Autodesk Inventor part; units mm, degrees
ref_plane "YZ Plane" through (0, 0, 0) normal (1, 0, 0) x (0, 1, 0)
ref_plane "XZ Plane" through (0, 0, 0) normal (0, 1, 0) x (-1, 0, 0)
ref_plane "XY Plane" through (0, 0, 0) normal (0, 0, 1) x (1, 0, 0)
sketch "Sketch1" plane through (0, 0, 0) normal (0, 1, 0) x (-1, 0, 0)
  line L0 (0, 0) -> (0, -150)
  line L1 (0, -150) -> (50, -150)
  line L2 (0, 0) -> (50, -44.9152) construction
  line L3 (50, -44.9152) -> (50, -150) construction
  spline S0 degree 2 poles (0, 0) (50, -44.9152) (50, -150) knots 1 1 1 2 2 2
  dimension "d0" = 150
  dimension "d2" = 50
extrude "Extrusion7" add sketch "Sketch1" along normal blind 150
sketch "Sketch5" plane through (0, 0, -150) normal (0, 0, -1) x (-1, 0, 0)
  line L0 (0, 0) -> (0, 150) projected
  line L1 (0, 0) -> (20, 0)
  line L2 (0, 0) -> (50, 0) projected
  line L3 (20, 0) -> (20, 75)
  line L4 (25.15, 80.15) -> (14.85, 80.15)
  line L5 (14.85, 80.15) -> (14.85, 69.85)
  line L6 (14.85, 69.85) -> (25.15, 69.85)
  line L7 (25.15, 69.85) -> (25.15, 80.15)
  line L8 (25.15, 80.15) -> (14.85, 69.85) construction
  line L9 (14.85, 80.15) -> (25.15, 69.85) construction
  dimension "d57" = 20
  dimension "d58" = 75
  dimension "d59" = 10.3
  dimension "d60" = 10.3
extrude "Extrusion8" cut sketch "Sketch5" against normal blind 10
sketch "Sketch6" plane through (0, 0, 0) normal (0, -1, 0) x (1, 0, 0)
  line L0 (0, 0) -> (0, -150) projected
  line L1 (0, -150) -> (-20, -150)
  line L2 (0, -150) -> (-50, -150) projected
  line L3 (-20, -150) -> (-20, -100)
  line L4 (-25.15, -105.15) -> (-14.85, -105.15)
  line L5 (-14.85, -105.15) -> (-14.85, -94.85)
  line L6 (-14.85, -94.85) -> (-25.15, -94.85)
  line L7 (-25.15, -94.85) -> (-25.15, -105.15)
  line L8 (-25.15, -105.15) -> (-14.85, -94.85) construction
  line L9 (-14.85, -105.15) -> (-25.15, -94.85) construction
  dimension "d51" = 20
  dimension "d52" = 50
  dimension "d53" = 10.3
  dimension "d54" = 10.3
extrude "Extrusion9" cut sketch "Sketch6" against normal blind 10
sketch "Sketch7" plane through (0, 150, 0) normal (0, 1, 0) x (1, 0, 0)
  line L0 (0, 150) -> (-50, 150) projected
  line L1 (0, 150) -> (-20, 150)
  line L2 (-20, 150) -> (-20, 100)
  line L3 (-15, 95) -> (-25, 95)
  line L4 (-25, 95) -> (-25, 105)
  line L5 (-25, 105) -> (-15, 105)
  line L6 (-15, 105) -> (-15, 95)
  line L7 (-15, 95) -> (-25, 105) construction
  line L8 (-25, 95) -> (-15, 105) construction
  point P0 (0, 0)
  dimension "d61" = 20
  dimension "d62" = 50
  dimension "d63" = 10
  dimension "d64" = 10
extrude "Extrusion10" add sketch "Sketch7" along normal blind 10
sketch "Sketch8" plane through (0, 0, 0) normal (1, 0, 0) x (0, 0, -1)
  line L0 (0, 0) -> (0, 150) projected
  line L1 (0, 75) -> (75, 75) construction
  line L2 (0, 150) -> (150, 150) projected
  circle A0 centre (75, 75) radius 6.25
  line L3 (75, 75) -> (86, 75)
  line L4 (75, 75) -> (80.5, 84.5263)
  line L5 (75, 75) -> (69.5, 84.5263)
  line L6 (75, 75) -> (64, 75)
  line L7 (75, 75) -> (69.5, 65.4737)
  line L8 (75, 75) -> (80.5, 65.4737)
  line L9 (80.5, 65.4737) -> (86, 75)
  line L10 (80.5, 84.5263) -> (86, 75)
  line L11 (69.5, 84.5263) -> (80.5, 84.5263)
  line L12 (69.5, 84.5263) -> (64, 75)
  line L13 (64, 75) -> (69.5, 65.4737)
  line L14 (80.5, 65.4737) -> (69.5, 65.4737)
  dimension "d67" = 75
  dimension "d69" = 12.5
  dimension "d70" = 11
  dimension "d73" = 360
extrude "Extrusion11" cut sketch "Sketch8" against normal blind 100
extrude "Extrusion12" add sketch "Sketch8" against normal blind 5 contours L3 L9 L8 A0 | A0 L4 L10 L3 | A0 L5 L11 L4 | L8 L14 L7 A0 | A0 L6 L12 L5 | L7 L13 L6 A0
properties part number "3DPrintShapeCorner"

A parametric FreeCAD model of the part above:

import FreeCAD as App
import Part
import Sketcher
from FreeCAD import Vector
Q = App.Units.Quantity

doc = App.newDocument("Part")
params = doc.addObject("Spreadsheet::Sheet", "Params")
for row, (alias, value) in enumerate([
    ("pad1_length", "150 mm"),
    ("sketch2_width", "10.3 mm"),
    ("pocket1_length", "10 mm"),
    ("sketch3_width", "10.3 mm"),
    ("pocket2_length", "10 mm"),
    ("sketch4_width", "10 mm"),
    ("pad2_length", "10 mm"),
    ("sketch5_height", "11 mm"),
    ("sketch5_length", "11 mm"),
    ("pocket3_length", "100 mm"),
    ("sketch6_diameter", "12.5 mm"),
    ("sketch6_height", "11 mm"),
    ("sketch6_length", "11 mm"),
    ("pad3_length", "5 mm"),
], start=1):
    params.set(f"A{row}", alias)
    params.set(f"B{row}", "=" + value)
    params.setAlias(f"B{row}", alias)

body = doc.addObject("PartDesign::Body", "Body")

# Sketch on XZ plane
sketch1 = body.newObject("Sketcher::SketchObject", "Sketch")
sketch1.AttachmentSupport = (doc.getObject("XZ_Plane"), [""])
sketch1.MapMode = "FlatFace"
sketch1.addGeometry([
    Part.BSplineCurve([Vector(0, 0, 0), Vector(-50, -44.9152, 0), Vector(-50, -150, 0)], [3, 3], [1, 2], False, 2, [1, 1, 1], False),
    Part.LineSegment(Vector(0, 0, 0), Vector(0, -150, 0)),
    Part.LineSegment(Vector(0, -150, 0), Vector(-50, -150, 0)),
], False)
sketch1.addConstraint([
    Sketcher.Constraint("Block", 0),
    Sketcher.Constraint("Coincident", 0, 1, 1, 1),
    Sketcher.Constraint("Coincident", 1, 2, 2, 1),
    Sketcher.Constraint("Coincident", 2, 2, 0, 2),
    Sketcher.Constraint("Vertical", 1),
    Sketcher.Constraint("Horizontal", 2),
])
pad1 = body.newObject("PartDesign::Pad", "Pad")
pad1.Profile = sketch1
pad1.setExpression("Length", "Params.pad1_length")
pad1.Reversed = True

# Sketch on XY plane
sketch2 = body.newObject("Sketcher::SketchObject", "Sketch001")
sketch2.AttachmentSupport = (doc.getObject("XY_Plane"), [""])
sketch2.MapMode = "FlatFace"
sketch2.AttachmentOffset = App.Placement(Vector(0, 0, -150), App.Rotation())
sketch2.addGeometry([
    Part.LineSegment(Vector(-25, 70, 0), Vector(-25, 80, 0)),
    Part.LineSegment(Vector(-25, 80, 0), Vector(-15, 80, 0)),
    Part.LineSegment(Vector(-15, 80, 0), Vector(-15, 70, 0)),
    Part.LineSegment(Vector(-15, 70, 0), Vector(-25, 70, 0)),
], False)
sketch2.addConstraint([
    Sketcher.Constraint("Coincident", 0, 2, 1, 1),
    Sketcher.Constraint("Coincident", 1, 2, 2, 1),
    Sketcher.Constraint("Coincident", 2, 2, 3, 1),
    Sketcher.Constraint("Coincident", 3, 2, 0, 1),
    Sketcher.Constraint("Vertical", 0),
    Sketcher.Constraint("Horizontal", 1),
    Sketcher.Constraint("Vertical", 2),
    Sketcher.Constraint("Horizontal", 3),
    Sketcher.Constraint("Equal", 3, 0),
    Sketcher.Constraint("DistanceX", 1, 1, 1, 2, 10.3),
    Sketcher.Constraint("DistanceX", 0, 2, -1, 1, 25.15),
    Sketcher.Constraint("DistanceY", -1, 1, 0, 2, 80.15),
])
sketch2.setExpression("Constraints[9]", "Params.sketch2_width")
pocket1 = body.newObject("PartDesign::Pocket", "Pocket")
pocket1.Profile = sketch2
pocket1.setExpression("Length", "Params.pocket1_length")
pocket1.Reversed = True

# Sketch on XZ plane
sketch3 = body.newObject("Sketcher::SketchObject", "Sketch002")
sketch3.AttachmentSupport = (doc.getObject("XZ_Plane"), [""])
sketch3.MapMode = "FlatFace"
sketch3.addGeometry([
    Part.LineSegment(Vector(-25, -95, 0), Vector(-25, -105, 0)),
    Part.LineSegment(Vector(-25, -105, 0), Vector(-15, -105, 0)),
    Part.LineSegment(Vector(-15, -105, 0), Vector(-15, -95, 0)),
    Part.LineSegment(Vector(-15, -95, 0), Vector(-25, -95, 0)),
], False)
sketch3.addConstraint([
    Sketcher.Constraint("Coincident", 0, 2, 1, 1),
    Sketcher.Constraint("Coincident", 1, 2, 2, 1),
    Sketcher.Constraint("Coincident", 2, 2, 3, 1),
    Sketcher.Constraint("Coincident", 3, 2, 0, 1),
    Sketcher.Constraint("Vertical", 0),
    Sketcher.Constraint("Horizontal", 1),
    Sketcher.Constraint("Vertical", 2),
    Sketcher.Constraint("Horizontal", 3),
    Sketcher.Constraint("Equal", 3, 0),
    Sketcher.Constraint("DistanceX", 1, 1, 1, 2, 10.3),
    Sketcher.Constraint("DistanceX", 0, 2, -1, 1, 25.15),
    Sketcher.Constraint("DistanceY", 0, 2, -1, 1, 105.15),
])
sketch3.setExpression("Constraints[9]", "Params.sketch3_width")
pocket2 = body.newObject("PartDesign::Pocket", "Pocket001")
pocket2.Profile = sketch3
pocket2.setExpression("Length", "Params.pocket2_length")

# Sketch on XZ plane
sketch4 = body.newObject("Sketcher::SketchObject", "Sketch003")
sketch4.AttachmentSupport = (doc.getObject("XZ_Plane"), [""])
sketch4.MapMode = "FlatFace"
sketch4.AttachmentOffset = App.Placement(Vector(0, 0, -150), App.Rotation())
sketch4.addGeometry([
    Part.LineSegment(Vector(-25, -95, 0), Vector(-15, -95, 0)),
    Part.LineSegment(Vector(-15, -95, 0), Vector(-15, -105, 0)),
    Part.LineSegment(Vector(-15, -105, 0), Vector(-25, -105, 0)),
    Part.LineSegment(Vector(-25, -105, 0), Vector(-25, -95, 0)),
], False)
sketch4.addConstraint([
    Sketcher.Constraint("Coincident", 0, 2, 1, 1),
    Sketcher.Constraint("Coincident", 1, 2, 2, 1),
    Sketcher.Constraint("Coincident", 2, 2, 3, 1),
    Sketcher.Constraint("Coincident", 3, 2, 0, 1),
    Sketcher.Constraint("Horizontal", 0),
    Sketcher.Constraint("Vertical", 1),
    Sketcher.Constraint("Horizontal", 2),
    Sketcher.Constraint("Vertical", 3),
    Sketcher.Constraint("Equal", 2, 1),
    Sketcher.Constraint("DistanceX", 0, 1, 0, 2, 10.0),
    Sketcher.Constraint("DistanceX", 0, 2, -1, 1, 15.0),
    Sketcher.Constraint("DistanceY", 0, 2, -1, 1, 95.0),
])
sketch4.setExpression("Constraints[9]", "Params.sketch4_width")
pad2 = body.newObject("PartDesign::Pad", "Pad001")
pad2.Profile = sketch4
pad2.setExpression("Length", "Params.pad2_length")
pad2.Reversed = True

# Sketch on YZ plane
sketch5 = body.newObject("Sketcher::SketchObject", "Sketch004")
sketch5.AttachmentSupport = (doc.getObject("YZ_Plane"), [""])
sketch5.MapMode = "FlatFace"
sketch5.addGeometry([
    Part.LineSegment(Vector(75, -86, 0), Vector(85, -80, 0)),  # 0
    Part.LineSegment(Vector(85, -80, 0), Vector(85, -70, 0)),  # 1
    Part.LineSegment(Vector(85, -70, 0), Vector(75, -64, 0)),  # 2
    Part.LineSegment(Vector(75, -64, 0), Vector(65, -70, 0)),  # 3
    Part.LineSegment(Vector(65, -70, 0), Vector(65, -80, 0)),  # 4
    Part.LineSegment(Vector(65, -80, 0), Vector(75, -86, 0)),  # 5
], False)
sketch5.addConstraint([
    Sketcher.Constraint("Coincident", 0, 2, 1, 1),
    Sketcher.Constraint("Coincident", 1, 2, 2, 1),
    Sketcher.Constraint("Coincident", 2, 2, 3, 1),
    Sketcher.Constraint("Coincident", 3, 2, 4, 1),
    Sketcher.Constraint("Coincident", 4, 2, 5, 1),
    Sketcher.Constraint("Coincident", 5, 2, 0, 1),
    Sketcher.Constraint("Vertical", 1),
    Sketcher.Constraint("Vertical", 4),
    Sketcher.Constraint("Parallel", 0, 3),
    Sketcher.Constraint("Parallel", 2, 5),
    Sketcher.Constraint("Horizontal", 1, 2, 3, 2),
    Sketcher.Constraint("Horizontal", 0, 2, 4, 2),
    Sketcher.Constraint("Vertical", 2, 2, 5, 2),
    Sketcher.Constraint("DistanceY", 1, 1, 1, 2, 11.0),
    Sketcher.Constraint("Distance", 0, 11.0),
    Sketcher.Constraint("DistanceX", -1, 1, 2, 2, 75.0),
    Sketcher.Constraint("Angle", 0, Q("30 deg")),
    Sketcher.Constraint("DistanceY", 2, 2, -1, 1, 64.0),
])
sketch5.setExpression("Constraints[13]", "Params.sketch5_height")
sketch5.setExpression("Constraints[14]", "Params.sketch5_length")
pocket3 = body.newObject("PartDesign::Pocket", "Pocket002")
pocket3.Profile = sketch5
pocket3.setExpression("Length", "Params.pocket3_length")

# Sketch on YZ plane
sketch6 = body.newObject("Sketcher::SketchObject", "Sketch005")
sketch6.AttachmentSupport = (doc.getObject("YZ_Plane"), [""])
sketch6.MapMode = "FlatFace"
sketch6.addGeometry([
    Part.LineSegment(Vector(65, -80, 0), Vector(75, -86, 0)),  # 0
    Part.LineSegment(Vector(75, -86, 0), Vector(85, -80, 0)),  # 1
    Part.LineSegment(Vector(85, -80, 0), Vector(85, -70, 0)),  # 2
    Part.LineSegment(Vector(85, -70, 0), Vector(75, -64, 0)),  # 3
    Part.LineSegment(Vector(75, -64, 0), Vector(65, -70, 0)),  # 4
    Part.LineSegment(Vector(65, -70, 0), Vector(65, -80, 0)),  # 5
    Part.Circle(Vector(75, -75, 0), Vector(0, 0, 1), 6),  # 6
], False)
sketch6.addConstraint([
    Sketcher.Constraint("Coincident", 0, 2, 1, 1),
    Sketcher.Constraint("Coincident", 1, 2, 2, 1),
    Sketcher.Constraint("Coincident", 2, 2, 3, 1),
    Sketcher.Constraint("Coincident", 3, 2, 4, 1),
    Sketcher.Constraint("Coincident", 4, 2, 5, 1),
    Sketcher.Constraint("Coincident", 5, 2, 0, 1),
    Sketcher.Constraint("Vertical", 2),
    Sketcher.Constraint("Vertical", 5),
    Sketcher.Constraint("Parallel", 0, 3),
    Sketcher.Constraint("Parallel", 1, 4),
    Sketcher.Constraint("Horizontal", 2, 2, 4, 2),
    Sketcher.Constraint("Horizontal", 1, 2, 5, 2),
    Sketcher.Constraint("Vertical", 6, 3, 0, 2),
    Sketcher.Constraint("Vertical", 0, 2, 3, 2),
    Sketcher.Constraint("Diameter", 6, 12.5),
    Sketcher.Constraint("DistanceY", 2, 1, 2, 2, 11.0),
    Sketcher.Constraint("Distance", 0, 11.0),
    Sketcher.Constraint("DistanceX", -1, 1, 6, 3, 75.0),
    Sketcher.Constraint("DistanceY", 6, 3, -1, 1, 75.0),
    Sketcher.Constraint("DistanceY", 0, 2, 6, 3, 11.0),
    Sketcher.Constraint("DistanceY", 6, 3, 3, 2, 11.0),
])
sketch6.setExpression("Constraints[14]", "Params.sketch6_diameter")
sketch6.setExpression("Constraints[15]", "Params.sketch6_height")
sketch6.setExpression("Constraints[16]", "Params.sketch6_length")
pad3 = body.newObject("PartDesign::Pad", "Pad002")
pad3.Profile = sketch6
pad3.setExpression("Length", "Params.pad3_length")
pad3.Reversed = True

doc.recompute()
